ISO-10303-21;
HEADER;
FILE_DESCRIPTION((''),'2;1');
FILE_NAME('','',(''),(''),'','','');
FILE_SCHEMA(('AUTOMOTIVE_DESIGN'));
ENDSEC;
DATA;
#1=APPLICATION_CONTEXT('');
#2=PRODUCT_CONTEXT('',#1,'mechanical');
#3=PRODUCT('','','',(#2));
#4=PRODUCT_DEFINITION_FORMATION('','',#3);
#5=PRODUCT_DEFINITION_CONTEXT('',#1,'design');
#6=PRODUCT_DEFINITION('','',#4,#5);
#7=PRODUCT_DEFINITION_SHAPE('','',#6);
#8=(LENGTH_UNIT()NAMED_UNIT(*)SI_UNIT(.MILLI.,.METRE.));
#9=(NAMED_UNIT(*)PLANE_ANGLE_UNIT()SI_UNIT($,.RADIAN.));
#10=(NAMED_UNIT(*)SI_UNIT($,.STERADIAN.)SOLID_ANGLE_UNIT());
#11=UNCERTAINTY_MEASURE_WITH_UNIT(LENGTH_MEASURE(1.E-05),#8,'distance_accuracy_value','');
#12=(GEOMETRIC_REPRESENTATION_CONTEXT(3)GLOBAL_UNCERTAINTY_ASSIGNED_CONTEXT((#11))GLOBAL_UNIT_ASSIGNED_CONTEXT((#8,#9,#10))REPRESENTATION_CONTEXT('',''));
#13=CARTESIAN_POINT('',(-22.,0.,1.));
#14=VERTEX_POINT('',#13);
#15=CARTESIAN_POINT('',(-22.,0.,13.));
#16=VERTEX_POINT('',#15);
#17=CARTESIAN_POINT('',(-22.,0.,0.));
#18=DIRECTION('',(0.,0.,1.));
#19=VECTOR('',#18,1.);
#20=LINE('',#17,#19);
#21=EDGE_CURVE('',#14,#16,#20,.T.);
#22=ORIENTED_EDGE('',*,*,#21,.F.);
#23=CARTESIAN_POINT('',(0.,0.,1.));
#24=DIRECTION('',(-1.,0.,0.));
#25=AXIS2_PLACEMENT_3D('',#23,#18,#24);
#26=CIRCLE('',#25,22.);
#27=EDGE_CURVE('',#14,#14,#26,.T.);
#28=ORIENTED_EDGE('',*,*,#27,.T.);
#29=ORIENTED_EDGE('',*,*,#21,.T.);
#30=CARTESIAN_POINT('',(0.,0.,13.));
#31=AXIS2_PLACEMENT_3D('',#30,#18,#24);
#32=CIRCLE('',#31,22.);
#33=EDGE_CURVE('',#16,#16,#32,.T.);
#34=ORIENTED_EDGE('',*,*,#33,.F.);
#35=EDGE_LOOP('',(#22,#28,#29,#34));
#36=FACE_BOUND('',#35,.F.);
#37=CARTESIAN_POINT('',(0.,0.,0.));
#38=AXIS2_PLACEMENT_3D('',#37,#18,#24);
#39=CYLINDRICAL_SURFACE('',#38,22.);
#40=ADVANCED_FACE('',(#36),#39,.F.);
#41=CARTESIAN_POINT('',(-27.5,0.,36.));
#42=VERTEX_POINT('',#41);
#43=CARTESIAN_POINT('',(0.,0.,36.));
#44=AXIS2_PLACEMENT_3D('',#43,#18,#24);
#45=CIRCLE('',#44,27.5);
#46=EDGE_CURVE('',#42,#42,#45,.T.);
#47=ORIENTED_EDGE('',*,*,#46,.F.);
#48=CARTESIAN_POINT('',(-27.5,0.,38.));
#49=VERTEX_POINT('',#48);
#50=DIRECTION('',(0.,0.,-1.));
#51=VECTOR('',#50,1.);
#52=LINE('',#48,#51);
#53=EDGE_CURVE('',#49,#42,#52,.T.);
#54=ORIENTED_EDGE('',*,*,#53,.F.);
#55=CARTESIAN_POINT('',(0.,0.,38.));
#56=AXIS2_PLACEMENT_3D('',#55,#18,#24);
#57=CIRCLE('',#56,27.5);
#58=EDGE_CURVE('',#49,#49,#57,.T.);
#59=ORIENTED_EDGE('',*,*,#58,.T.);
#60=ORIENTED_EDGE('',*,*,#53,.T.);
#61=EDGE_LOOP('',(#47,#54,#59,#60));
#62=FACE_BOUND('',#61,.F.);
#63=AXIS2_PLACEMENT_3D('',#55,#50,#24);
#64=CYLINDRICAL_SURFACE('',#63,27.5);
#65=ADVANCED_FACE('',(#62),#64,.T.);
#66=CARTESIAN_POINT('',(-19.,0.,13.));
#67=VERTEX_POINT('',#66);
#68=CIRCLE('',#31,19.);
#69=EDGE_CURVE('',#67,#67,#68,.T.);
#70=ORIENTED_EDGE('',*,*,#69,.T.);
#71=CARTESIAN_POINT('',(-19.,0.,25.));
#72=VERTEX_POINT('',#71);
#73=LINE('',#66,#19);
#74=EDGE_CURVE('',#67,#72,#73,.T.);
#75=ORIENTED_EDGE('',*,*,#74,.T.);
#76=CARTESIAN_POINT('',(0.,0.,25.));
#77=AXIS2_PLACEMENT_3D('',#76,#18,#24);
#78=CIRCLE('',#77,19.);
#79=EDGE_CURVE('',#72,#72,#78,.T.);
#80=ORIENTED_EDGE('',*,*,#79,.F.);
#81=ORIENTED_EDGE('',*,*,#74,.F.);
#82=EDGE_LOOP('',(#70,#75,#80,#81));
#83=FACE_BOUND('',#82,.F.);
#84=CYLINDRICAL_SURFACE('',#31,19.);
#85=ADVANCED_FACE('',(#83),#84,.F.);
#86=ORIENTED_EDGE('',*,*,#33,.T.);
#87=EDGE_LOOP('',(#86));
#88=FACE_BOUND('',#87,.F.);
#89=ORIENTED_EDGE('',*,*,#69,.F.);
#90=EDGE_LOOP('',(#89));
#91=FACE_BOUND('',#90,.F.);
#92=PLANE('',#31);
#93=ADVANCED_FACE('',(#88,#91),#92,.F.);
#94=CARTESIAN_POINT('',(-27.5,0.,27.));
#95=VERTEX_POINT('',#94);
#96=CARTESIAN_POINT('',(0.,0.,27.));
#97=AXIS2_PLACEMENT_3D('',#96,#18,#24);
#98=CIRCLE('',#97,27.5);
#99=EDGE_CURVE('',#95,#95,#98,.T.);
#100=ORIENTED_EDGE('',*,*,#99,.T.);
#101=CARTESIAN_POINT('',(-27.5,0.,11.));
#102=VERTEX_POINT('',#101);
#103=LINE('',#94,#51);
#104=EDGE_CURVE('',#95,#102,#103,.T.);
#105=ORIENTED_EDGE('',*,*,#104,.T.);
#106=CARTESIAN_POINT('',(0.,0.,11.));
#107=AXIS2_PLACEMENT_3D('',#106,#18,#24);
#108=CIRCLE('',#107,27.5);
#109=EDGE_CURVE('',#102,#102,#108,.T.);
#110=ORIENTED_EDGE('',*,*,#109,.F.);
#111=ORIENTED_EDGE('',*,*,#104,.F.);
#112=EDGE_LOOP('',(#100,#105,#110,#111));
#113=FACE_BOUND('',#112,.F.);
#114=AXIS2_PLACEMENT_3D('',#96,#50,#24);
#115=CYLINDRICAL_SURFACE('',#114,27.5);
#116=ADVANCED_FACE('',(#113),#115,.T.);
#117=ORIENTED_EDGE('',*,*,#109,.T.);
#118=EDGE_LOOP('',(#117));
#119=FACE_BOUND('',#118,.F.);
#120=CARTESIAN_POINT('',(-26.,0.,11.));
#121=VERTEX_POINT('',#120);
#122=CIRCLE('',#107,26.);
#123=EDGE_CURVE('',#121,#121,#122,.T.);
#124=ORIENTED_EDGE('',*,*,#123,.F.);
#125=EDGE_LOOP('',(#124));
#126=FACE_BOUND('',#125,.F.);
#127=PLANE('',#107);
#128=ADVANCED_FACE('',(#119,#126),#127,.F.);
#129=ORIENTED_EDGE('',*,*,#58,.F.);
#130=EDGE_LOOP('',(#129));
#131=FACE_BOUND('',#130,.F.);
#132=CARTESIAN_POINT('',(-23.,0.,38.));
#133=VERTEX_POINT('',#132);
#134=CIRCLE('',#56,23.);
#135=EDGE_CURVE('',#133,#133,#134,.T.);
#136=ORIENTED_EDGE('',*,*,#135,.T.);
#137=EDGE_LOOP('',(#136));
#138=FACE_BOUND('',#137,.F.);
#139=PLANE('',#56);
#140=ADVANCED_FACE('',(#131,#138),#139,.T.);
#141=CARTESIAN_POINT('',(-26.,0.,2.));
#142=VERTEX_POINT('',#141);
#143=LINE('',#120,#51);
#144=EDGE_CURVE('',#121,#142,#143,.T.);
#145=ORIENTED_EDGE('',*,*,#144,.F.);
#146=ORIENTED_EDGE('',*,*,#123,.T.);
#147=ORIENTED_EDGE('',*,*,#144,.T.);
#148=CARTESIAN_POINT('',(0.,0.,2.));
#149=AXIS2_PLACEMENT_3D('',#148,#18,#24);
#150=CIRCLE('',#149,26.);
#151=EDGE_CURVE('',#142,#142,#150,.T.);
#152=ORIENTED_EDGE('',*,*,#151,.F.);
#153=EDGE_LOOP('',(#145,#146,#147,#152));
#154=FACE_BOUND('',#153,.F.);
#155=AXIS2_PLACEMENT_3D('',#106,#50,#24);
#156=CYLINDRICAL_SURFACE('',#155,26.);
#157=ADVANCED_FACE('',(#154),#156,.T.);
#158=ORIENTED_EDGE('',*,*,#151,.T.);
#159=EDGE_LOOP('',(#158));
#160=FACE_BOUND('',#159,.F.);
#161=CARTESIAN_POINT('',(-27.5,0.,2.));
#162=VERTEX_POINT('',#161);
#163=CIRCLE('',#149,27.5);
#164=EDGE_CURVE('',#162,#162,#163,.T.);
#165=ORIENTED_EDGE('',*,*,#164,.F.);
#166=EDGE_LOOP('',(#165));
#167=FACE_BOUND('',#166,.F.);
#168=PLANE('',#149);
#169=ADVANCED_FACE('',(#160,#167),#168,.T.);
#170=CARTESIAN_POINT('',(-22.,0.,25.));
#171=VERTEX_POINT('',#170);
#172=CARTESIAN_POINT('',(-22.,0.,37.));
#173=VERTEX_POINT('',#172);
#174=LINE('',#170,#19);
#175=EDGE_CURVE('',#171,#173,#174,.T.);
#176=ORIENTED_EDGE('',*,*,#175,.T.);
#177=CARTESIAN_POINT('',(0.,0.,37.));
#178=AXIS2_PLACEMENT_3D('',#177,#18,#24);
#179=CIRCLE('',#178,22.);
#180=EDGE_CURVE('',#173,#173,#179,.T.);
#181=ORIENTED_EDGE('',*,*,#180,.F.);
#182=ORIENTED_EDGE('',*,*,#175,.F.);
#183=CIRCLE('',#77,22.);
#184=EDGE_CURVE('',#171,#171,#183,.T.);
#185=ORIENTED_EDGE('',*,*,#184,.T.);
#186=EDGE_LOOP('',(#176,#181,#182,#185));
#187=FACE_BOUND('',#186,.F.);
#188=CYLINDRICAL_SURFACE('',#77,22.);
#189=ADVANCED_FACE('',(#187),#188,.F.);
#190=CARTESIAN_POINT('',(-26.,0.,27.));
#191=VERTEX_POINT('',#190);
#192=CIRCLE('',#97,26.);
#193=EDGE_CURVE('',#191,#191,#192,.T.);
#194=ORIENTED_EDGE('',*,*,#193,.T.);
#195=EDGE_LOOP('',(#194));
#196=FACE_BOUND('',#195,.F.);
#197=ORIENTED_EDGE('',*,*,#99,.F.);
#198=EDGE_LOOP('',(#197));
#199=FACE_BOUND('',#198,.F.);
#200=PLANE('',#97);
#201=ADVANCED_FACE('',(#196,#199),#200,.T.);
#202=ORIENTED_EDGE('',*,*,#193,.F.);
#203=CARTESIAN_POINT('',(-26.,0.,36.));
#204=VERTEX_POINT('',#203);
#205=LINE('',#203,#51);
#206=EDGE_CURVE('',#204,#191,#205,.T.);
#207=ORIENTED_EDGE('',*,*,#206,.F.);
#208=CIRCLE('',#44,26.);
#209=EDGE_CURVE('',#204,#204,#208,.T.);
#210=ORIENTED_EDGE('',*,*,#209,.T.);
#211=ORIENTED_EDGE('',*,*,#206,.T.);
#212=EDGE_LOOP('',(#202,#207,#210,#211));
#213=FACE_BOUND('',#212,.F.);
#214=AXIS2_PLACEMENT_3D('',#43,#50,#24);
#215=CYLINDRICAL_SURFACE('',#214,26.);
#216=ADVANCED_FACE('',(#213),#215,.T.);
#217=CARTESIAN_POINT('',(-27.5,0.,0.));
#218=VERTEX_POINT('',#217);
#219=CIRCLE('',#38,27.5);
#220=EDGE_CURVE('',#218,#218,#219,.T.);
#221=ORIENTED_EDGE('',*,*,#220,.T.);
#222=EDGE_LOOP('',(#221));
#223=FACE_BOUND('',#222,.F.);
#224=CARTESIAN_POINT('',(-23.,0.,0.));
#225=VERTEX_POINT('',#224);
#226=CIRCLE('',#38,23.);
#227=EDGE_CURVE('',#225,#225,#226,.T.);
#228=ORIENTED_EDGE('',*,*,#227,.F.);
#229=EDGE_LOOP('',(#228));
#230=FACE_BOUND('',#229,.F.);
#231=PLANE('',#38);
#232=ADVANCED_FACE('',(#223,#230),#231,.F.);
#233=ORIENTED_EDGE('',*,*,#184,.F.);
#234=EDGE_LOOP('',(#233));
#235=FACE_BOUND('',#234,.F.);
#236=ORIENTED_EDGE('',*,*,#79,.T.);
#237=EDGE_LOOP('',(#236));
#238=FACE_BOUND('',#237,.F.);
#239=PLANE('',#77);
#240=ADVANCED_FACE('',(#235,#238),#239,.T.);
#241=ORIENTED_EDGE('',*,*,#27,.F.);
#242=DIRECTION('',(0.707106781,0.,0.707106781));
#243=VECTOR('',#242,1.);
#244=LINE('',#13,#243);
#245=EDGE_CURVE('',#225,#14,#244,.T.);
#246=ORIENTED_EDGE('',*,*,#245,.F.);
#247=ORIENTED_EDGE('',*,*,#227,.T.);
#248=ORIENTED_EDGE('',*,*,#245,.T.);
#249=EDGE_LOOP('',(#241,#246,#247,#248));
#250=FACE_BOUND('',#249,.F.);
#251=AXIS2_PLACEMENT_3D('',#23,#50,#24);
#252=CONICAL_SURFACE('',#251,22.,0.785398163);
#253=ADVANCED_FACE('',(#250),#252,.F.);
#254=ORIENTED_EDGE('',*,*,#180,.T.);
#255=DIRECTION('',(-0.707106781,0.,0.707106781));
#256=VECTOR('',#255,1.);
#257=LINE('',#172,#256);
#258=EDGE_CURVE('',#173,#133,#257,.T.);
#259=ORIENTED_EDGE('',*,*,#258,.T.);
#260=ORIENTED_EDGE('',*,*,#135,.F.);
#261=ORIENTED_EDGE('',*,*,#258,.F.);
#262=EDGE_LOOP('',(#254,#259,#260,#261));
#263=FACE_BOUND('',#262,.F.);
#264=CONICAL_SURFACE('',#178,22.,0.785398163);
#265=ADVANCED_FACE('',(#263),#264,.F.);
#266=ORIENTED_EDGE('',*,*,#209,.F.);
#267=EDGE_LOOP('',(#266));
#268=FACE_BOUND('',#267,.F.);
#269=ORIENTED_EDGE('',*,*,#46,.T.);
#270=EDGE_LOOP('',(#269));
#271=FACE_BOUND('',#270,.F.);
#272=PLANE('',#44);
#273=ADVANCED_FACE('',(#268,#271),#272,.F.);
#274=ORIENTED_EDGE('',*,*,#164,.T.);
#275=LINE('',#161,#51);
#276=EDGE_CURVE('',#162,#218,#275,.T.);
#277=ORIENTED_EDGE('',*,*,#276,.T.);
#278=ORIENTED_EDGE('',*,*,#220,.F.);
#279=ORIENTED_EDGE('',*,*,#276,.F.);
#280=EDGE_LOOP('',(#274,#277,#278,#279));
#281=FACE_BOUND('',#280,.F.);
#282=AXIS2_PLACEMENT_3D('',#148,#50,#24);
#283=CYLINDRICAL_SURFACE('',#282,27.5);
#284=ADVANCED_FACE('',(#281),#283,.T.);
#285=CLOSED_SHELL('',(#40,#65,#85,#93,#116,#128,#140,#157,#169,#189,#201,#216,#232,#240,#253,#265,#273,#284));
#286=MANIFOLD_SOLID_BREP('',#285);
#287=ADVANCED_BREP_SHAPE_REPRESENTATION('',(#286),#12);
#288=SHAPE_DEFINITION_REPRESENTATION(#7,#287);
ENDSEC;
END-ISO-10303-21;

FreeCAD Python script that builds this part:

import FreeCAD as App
import Part
import Sketcher

V = App.Vector


def edges_at(feature, points):
    """Names of the edges that pass closest to the given points."""
    edges = feature.Shape.Edges
    near = lambda p: min(range(len(edges)), key=lambda i: edges[i].distToShape(Part.Vertex(*p))[0])
    return sorted({f"Edge{near(p) + 1}" for p in points})

doc = App.newDocument("Part")
body = doc.addObject("PartDesign::Body", "Body")

# Sketch on XZ plane
sketch1 = doc.addObject("Sketcher::SketchObject", "Sketch")
body.addObject(sketch1)
sketch1.AttachmentSupport = (doc.XZ_Plane, [""])
sketch1.MapMode = "FlatFace"
sketch1.addGeometry(Part.LineSegment(V(-27.5, 0, 0), V(-22, 0, 0)), False)
sketch1.addGeometry(Part.LineSegment(V(-22, 0, 0), V(-22, 13, 0)), False)
sketch1.addGeometry(Part.LineSegment(V(-22, 13, 0), V(-19, 13, 0)), False)
sketch1.addGeometry(Part.LineSegment(V(-19, 13, 0), V(-19, 25, 0)), False)
sketch1.addGeometry(Part.LineSegment(V(-19, 25, 0), V(-22, 25, 0)), False)
sketch1.addGeometry(Part.LineSegment(V(-22, 25, 0), V(-22, 38, 0)), False)
sketch1.addGeometry(Part.LineSegment(V(-22, 38, 0), V(-27.5, 38, 0)), False)
sketch1.addGeometry(Part.LineSegment(V(-27.5, 38, 0), V(-27.5, 36, 0)), False)
sketch1.addGeometry(Part.LineSegment(V(-27.5, 36, 0), V(-26, 36, 0)), False)
sketch1.addGeometry(Part.LineSegment(V(-26, 36, 0), V(-26, 27, 0)), False)
sketch1.addGeometry(Part.LineSegment(V(-26, 27, 0), V(-27.5, 27, 0)), False)
sketch1.addGeometry(Part.LineSegment(V(-27.5, 27, 0), V(-27.5, 11, 0)), False)
sketch1.addGeometry(Part.LineSegment(V(-27.5, 11, 0), V(-26, 11, 0)), False)
sketch1.addGeometry(Part.LineSegment(V(-26, 11, 0), V(-26, 2, 0)), False)
sketch1.addGeometry(Part.LineSegment(V(-26, 2, 0), V(-27.5, 2, 0)), False)
sketch1.addGeometry(Part.LineSegment(V(-27.5, 2, 0), V(-27.5, 0, 0)), False)
sketch1.addConstraint(Sketcher.Constraint("Coincident", 0, 2, 1, 1))
sketch1.addConstraint(Sketcher.Constraint("Coincident", 1, 2, 2, 1))
sketch1.addConstraint(Sketcher.Constraint("Coincident", 2, 2, 3, 1))
sketch1.addConstraint(Sketcher.Constraint("Coincident", 3, 2, 4, 1))
sketch1.addConstraint(Sketcher.Constraint("Coincident", 4, 2, 5, 1))
sketch1.addConstraint(Sketcher.Constraint("Coincident", 5, 2, 6, 1))
sketch1.addConstraint(Sketcher.Constraint("Coincident", 6, 2, 7, 1))
sketch1.addConstraint(Sketcher.Constraint("Coincident", 7, 2, 8, 1))
sketch1.addConstraint(Sketcher.Constraint("Coincident", 8, 2, 9, 1))
sketch1.addConstraint(Sketcher.Constraint("Coincident", 9, 2, 10, 1))
sketch1.addConstraint(Sketcher.Constraint("Coincident", 10, 2, 11, 1))
sketch1.addConstraint(Sketcher.Constraint("Coincident", 11, 2, 12, 1))
sketch1.addConstraint(Sketcher.Constraint("Coincident", 12, 2, 13, 1))
sketch1.addConstraint(Sketcher.Constraint("Coincident", 13, 2, 14, 1))
sketch1.addConstraint(Sketcher.Constraint("Coincident", 14, 2, 15, 1))
sketch1.addConstraint(Sketcher.Constraint("Coincident", 15, 2, 0, 1))
sketch1.addConstraint(Sketcher.Constraint("Horizontal", 0))
sketch1.addConstraint(Sketcher.Constraint("Vertical", 1))
sketch1.addConstraint(Sketcher.Constraint("Horizontal", 2))
sketch1.addConstraint(Sketcher.Constraint("Vertical", 3))
sketch1.addConstraint(Sketcher.Constraint("Horizontal", 4))
sketch1.addConstraint(Sketcher.Constraint("Vertical", 5))
sketch1.addConstraint(Sketcher.Constraint("Horizontal", 6))
sketch1.addConstraint(Sketcher.Constraint("Vertical", 7))
sketch1.addConstraint(Sketcher.Constraint("Horizontal", 8))
sketch1.addConstraint(Sketcher.Constraint("Vertical", 9))
sketch1.addConstraint(Sketcher.Constraint("Horizontal", 10))
sketch1.addConstraint(Sketcher.Constraint("Vertical", 11))
sketch1.addConstraint(Sketcher.Constraint("Horizontal", 12))
sketch1.addConstraint(Sketcher.Constraint("Vertical", 13))
sketch1.addConstraint(Sketcher.Constraint("Horizontal", 14))
sketch1.addConstraint(Sketcher.Constraint("Vertical", 15))
sketch1.addConstraint(Sketcher.Constraint("PointOnObject", 0, 2, -1))
sketch1.addConstraint(Sketcher.Constraint("Vertical", 1, 2, 4, 2))
sketch1.addConstraint(Sketcher.Constraint("Vertical", 7, 2, 10, 2))
sketch1.addConstraint(Sketcher.Constraint("Vertical", 9, 2, 12, 2))
sketch1.addConstraint(Sketcher.Constraint("Vertical", 11, 2, 14, 2))
sketch1.addConstraint(Sketcher.Constraint("Equal", 1, 5))
sketch1.addConstraint(Sketcher.Constraint("Equal", 9, 13))
sketch1.addConstraint(Sketcher.Constraint("Equal", 7, 15))
sketch1.addConstraint(Sketcher.Constraint("DistanceX", 2, 1, 2, 2, 3.0))
sketch1.addConstraint(Sketcher.Constraint("DistanceY", 1, 1, 1, 2, 13.0))
sketch1.addConstraint(Sketcher.Constraint("DistanceY", 3, 1, 3, 2, 12.0))
sketch1.addConstraint(Sketcher.Constraint("DistanceY", 7, 2, 7, 1, 2.0))
sketch1.addConstraint(Sketcher.Constraint("DistanceY", 9, 2, 9, 1, 9.0))
sketch1.addConstraint(Sketcher.Constraint("DistanceX", 0, 1, 0, 2, 5.5))
sketch1.addConstraint(Sketcher.Constraint("DistanceX", 8, 1, 8, 2, 1.5))
sketch1.addConstraint(Sketcher.Constraint("DistanceX", 0, 2, -1, 1, 22.0))
revolution = doc.addObject("PartDesign::Revolution", "Revolution")
body.addObject(revolution)
revolution.Profile = sketch1
revolution.ReferenceAxis = (sketch1, ["V_Axis"])
revolution.Angle = 360
doc.recompute()

chamfer = doc.addObject("PartDesign::Chamfer", "Chamfer")
body.addObject(chamfer)
chamfer.Base = (revolution, edges_at(revolution, [(22, 0, 38), (22, 0, 0)]))
chamfer.Size = 1

doc.recompute()
